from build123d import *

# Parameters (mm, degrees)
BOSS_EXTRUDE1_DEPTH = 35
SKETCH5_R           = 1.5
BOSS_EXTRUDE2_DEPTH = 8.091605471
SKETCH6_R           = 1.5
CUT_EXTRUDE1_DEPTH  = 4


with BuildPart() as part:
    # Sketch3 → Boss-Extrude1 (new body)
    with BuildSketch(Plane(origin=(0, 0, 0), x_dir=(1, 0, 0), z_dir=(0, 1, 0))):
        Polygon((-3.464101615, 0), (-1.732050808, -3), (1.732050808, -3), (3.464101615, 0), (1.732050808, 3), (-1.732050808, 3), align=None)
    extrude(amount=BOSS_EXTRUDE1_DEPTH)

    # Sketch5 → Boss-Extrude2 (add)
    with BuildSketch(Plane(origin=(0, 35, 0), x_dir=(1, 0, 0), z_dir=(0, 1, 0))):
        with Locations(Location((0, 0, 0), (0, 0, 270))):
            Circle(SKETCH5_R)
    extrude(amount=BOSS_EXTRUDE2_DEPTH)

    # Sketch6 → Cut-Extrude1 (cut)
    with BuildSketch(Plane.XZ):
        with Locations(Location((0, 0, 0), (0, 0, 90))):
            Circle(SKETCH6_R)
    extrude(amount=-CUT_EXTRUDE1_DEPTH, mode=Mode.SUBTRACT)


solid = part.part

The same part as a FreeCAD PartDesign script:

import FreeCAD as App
import Part
import Sketcher
Q = App.Units.Quantity

doc = App.newDocument("Part")
body = doc.addObject("PartDesign::Body", "Body")

# Sketch on XZ plane
sketch1 = doc.addObject("Sketcher::SketchObject", "Sketch")
body.addObject(sketch1)
sketch1.AttachmentSupport = (doc.XZ_Plane, [""])
sketch1.MapMode = "FlatFace"
sketch1.addGeometry(Part.LineSegment(App.Vector(-3.5, 0, 0), App.Vector(-1.7, 3, 0)), False)
sketch1.addGeometry(Part.LineSegment(App.Vector(-1.7, 3, 0), App.Vector(1.7, 3, 0)), False)
sketch1.addGeometry(Part.LineSegment(App.Vector(1.7, 3, 0), App.Vector(3.5, 0, 0)), False)
sketch1.addGeometry(Part.LineSegment(App.Vector(3.5, 0, 0), App.Vector(1.7, -3, 0)), False)
sketch1.addGeometry(Part.LineSegment(App.Vector(1.7, -3, 0), App.Vector(-1.7, -3, 0)), False)
sketch1.addGeometry(Part.LineSegment(App.Vector(-1.7, -3, 0), App.Vector(-3.5, 0, 0)), False)
sketch1.addConstraint(Sketcher.Constraint("Coincident", 0, 2, 1, 1))
sketch1.addConstraint(Sketcher.Constraint("Coincident", 1, 2, 2, 1))
sketch1.addConstraint(Sketcher.Constraint("Coincident", 2, 2, 3, 1))
sketch1.addConstraint(Sketcher.Constraint("Coincident", 3, 2, 4, 1))
sketch1.addConstraint(Sketcher.Constraint("Coincident", 4, 2, 5, 1))
sketch1.addConstraint(Sketcher.Constraint("Coincident", 5, 2, 0, 1))
sketch1.addConstraint(Sketcher.Constraint("Horizontal", 1))
sketch1.addConstraint(Sketcher.Constraint("Horizontal", 4))
sketch1.addConstraint(Sketcher.Constraint("Symmetric", 0, 2, 3, 2, -1, 1))
sketch1.addConstraint(Sketcher.Constraint("Symmetric", 2, 2, 5, 2, -1, 1))
sketch1.addConstraint(Sketcher.Constraint("PointOnObject", 2, 2, -1))
sketch1.addConstraint(Sketcher.Constraint("Parallel", 2, 5))
sketch1.addConstraint(Sketcher.Constraint("Vertical", 1, 2, 3, 2))
sketch1.addConstraint(Sketcher.Constraint("Angle", 0, Q("60 deg")))
sketch1.addConstraint(Sketcher.Constraint("DistanceY", -1, 1, 0, 2, Q("3 mm")))
sketch1.addConstraint(Sketcher.Constraint("DistanceX", 1, 1, 1, 2, Q("3.464102 mm")))
pad1 = doc.addObject("PartDesign::Pad", "Pad")
body.addObject(pad1)
pad1.Profile = sketch1
pad1.Length = 35
pad1.Reversed = True

# Sketch on XZ plane
sketch2 = doc.addObject("Sketcher::SketchObject", "Sketch001")
body.addObject(sketch2)
sketch2.AttachmentSupport = (doc.XZ_Plane, [""])
sketch2.MapMode = "FlatFace"
sketch2.AttachmentOffset = App.Placement(App.Vector(0, 0, -35), App.Rotation())
sketch2.addGeometry(Part.Circle(App.Vector(0, 0, 0), App.Vector(0, 0, 1), 1.5), False)
sketch2.addConstraint(Sketcher.Constraint("Coincident", 0, 3, -1, 1))
sketch2.addConstraint(Sketcher.Constraint("Diameter", 0, Q("3 mm")))
pad2 = doc.addObject("PartDesign::Pad", "Pad001")
body.addObject(pad2)
pad2.Profile = sketch2
pad2.Length = 8.091605
pad2.Reversed = True

# Sketch on XZ plane
sketch3 = doc.addObject("Sketcher::SketchObject", "Sketch002")
body.addObject(sketch3)
sketch3.AttachmentSupport = (doc.XZ_Plane, [""])
sketch3.MapMode = "FlatFace"
sketch3.addGeometry(Part.Circle(App.Vector(0, 0, 0), App.Vector(0, 0, 1), 1.5), False)
sketch3.addConstraint(Sketcher.Constraint("Coincident", 0, 3, -1, 1))
sketch3.addConstraint(Sketcher.Constraint("Diameter", 0, Q("3 mm")))
pocket1 = doc.addObject("PartDesign::Pocket", "Pocket")
body.addObject(pocket1)
pocket1.Profile = sketch3
pocket1.Length = 4

doc.recompute()
